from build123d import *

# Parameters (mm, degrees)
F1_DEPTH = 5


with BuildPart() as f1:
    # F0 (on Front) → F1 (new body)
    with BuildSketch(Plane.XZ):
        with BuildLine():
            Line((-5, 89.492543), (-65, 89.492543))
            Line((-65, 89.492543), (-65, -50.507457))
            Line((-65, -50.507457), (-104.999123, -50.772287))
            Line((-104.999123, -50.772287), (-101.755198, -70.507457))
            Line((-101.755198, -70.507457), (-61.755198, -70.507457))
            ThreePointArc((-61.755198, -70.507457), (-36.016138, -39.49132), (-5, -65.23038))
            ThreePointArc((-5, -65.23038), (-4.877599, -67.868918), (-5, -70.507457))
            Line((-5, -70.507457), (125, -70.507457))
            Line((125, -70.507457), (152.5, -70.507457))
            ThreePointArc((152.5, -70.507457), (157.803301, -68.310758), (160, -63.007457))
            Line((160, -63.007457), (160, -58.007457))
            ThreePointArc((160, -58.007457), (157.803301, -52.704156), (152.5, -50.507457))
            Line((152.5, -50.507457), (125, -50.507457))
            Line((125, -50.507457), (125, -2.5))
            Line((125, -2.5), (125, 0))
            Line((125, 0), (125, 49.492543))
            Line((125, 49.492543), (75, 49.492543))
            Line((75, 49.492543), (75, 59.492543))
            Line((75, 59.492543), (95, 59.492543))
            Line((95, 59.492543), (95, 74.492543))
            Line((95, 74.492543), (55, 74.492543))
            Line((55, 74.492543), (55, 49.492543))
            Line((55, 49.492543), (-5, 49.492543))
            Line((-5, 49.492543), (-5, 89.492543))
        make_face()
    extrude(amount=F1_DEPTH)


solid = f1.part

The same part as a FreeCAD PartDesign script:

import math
import FreeCAD as App
import Part
import Sketcher

V = App.Vector

doc = App.newDocument("Part")
body = doc.addObject("PartDesign::Body", "Body")

# Sketch on XZ plane
sketch1 = body.newObject("Sketcher::SketchObject", "Sketch")
sketch1.AttachmentSupport = (doc.getObject("XZ_Plane"), [""])
sketch1.MapMode = "FlatFace"
sketch1.addGeometry([
    Part.LineSegment(V(-5, 89.492543, 0), V(-65, 89.492543, 0)),  # 0
    Part.LineSegment(V(-65, 89.492543, 0), V(-65, -50.507457, 0)),  # 1
    Part.LineSegment(V(-65, -50.507457, 0), V(-104.999123, -50.772287, 0)),  # 2
    Part.LineSegment(V(-104.999123, -50.772287, 0), V(-101.755198, -70.507457, 0)),  # 3
    Part.LineSegment(V(-101.755198, -70.507457, 0), V(-61.755198, -70.507457, 0)),  # 4
    Part.ArcOfCircle(Part.Circle(V(-33.377599, -67.868919, 0), V(0, 0, 1), 28.5), math.radians(5.312068), math.radians(185.312066)),  # 5
    Part.ArcOfCircle(Part.Circle(V(-33.377642, -67.868919, 0), V(0, 0, 1), 28.500043), math.radians(-5.312059), math.radians(5.312059)),  # 6
    Part.LineSegment(V(-5, -70.507457, 0), V(152.5, -70.507457, 0)),  # 7
    Part.ArcOfCircle(Part.Circle(V(152.5, -63.007457, 0), V(0, 0, 1), 7.5), math.radians(-90.000004), math.radians(0.000004)),  # 8
    Part.LineSegment(V(160, -63.007457, 0), V(160, -58.007457, 0)),  # 9
    Part.ArcOfCircle(Part.Circle(V(152.5, -58.007457, 0), V(0, 0, 1), 7.5), math.radians(-0.000004), math.radians(90.000004)),  # 10
    Part.LineSegment(V(152.5, -50.507457, 0), V(125, -50.507457, 0)),  # 11
    Part.LineSegment(V(125, -50.507457, 0), V(125, 49.492543, 0)),  # 12
    Part.LineSegment(V(125, 49.492543, 0), V(75, 49.492543, 0)),  # 13
    Part.LineSegment(V(75, 49.492543, 0), V(75, 59.492543, 0)),  # 14
    Part.LineSegment(V(75, 59.492543, 0), V(95, 59.492543, 0)),  # 15
    Part.LineSegment(V(95, 59.492543, 0), V(95, 74.492543, 0)),  # 16
    Part.LineSegment(V(95, 74.492543, 0), V(55, 74.492543, 0)),  # 17
    Part.LineSegment(V(55, 74.492543, 0), V(55, 49.492543, 0)),  # 18
    Part.LineSegment(V(55, 49.492543, 0), V(-5, 49.492543, 0)),  # 19
    Part.LineSegment(V(-5, 49.492543, 0), V(-5, 89.492543, 0)),  # 20
], False)
sketch1.addConstraint([
    Sketcher.Constraint("Coincident", 0, 2, 1, 1),
    Sketcher.Constraint("Coincident", 1, 2, 2, 1),
    Sketcher.Constraint("Coincident", 2, 2, 3, 1),
    Sketcher.Constraint("Coincident", 3, 2, 4, 1),
    Sketcher.Constraint("Coincident", 4, 2, 5, 2),
    Sketcher.Constraint("Coincident", 5, 1, 6, 2),
    Sketcher.Constraint("Coincident", 6, 1, 7, 1),
    Sketcher.Constraint("Coincident", 7, 2, 8, 1),
    Sketcher.Constraint("Coincident", 8, 2, 9, 1),
    Sketcher.Constraint("Coincident", 9, 2, 10, 1),
    Sketcher.Constraint("Coincident", 10, 2, 11, 1),
    Sketcher.Constraint("Coincident", 11, 2, 12, 1),
    Sketcher.Constraint("Coincident", 12, 2, 13, 1),
    Sketcher.Constraint("Coincident", 13, 2, 14, 1),
    Sketcher.Constraint("Coincident", 14, 2, 15, 1),
    Sketcher.Constraint("Coincident", 15, 2, 16, 1),
    Sketcher.Constraint("Coincident", 16, 2, 17, 1),
    Sketcher.Constraint("Coincident", 17, 2, 18, 1),
    Sketcher.Constraint("Coincident", 18, 2, 19, 1),
    Sketcher.Constraint("Coincident", 19, 2, 20, 1),
    Sketcher.Constraint("Coincident", 20, 2, 0, 1),
    Sketcher.Constraint("Horizontal", 0),
    Sketcher.Constraint("Vertical", 1),
    Sketcher.Constraint("Horizontal", 4),
    Sketcher.Constraint("Horizontal", 7),
    Sketcher.Constraint("Vertical", 9),
    Sketcher.Constraint("Horizontal", 11),
    Sketcher.Constraint("Vertical", 12),
    Sketcher.Constraint("Horizontal", 13),
    Sketcher.Constraint("Vertical", 14),
    Sketcher.Constraint("Horizontal", 15),
    Sketcher.Constraint("Vertical", 16),
    Sketcher.Constraint("Horizontal", 17),
    Sketcher.Constraint("Vertical", 18),
    Sketcher.Constraint("Horizontal", 19),
    Sketcher.Constraint("Vertical", 20),
    Sketcher.Constraint("Radius", 5, 28.5),
    Sketcher.Constraint("Radius", 8, 7.5),
    Sketcher.Constraint("Radius", 10, 7.5),
    Sketcher.Constraint("DistanceX", 0, 2, 0, 1, 60.0),
    Sketcher.Constraint("DistanceX", 4, 1, 4, 2, 40.0),
    Sketcher.Constraint("DistanceX", 13, 2, 13, 1, 50.0),
    Sketcher.Constraint("DistanceX", 15, 1, 15, 2, 20.0),
    Sketcher.Constraint("DistanceX", 17, 2, 17, 1, 40.0),
    Sketcher.Constraint("DistanceX", 19, 2, 19, 1, 60.0),
    Sketcher.Constraint("DistanceY", 1, 2, 1, 1, 140.0),
    Sketcher.Constraint("DistanceY", 9, 1, 9, 2, 5.0),
    Sketcher.Constraint("DistanceY", 12, 1, 12, 2, 100.0),
    Sketcher.Constraint("DistanceY", 14, 1, 14, 2, 10.0),
    Sketcher.Constraint("DistanceY", 16, 1, 16, 2, 15.0),
    Sketcher.Constraint("DistanceY", 18, 2, 18, 1, 25.0),
    Sketcher.Constraint("DistanceY", 20, 1, 20, 2, 40.0),
    Sketcher.Constraint("Distance", 2, 40.0),
    Sketcher.Constraint("Distance", 3, 20.0),
    Sketcher.Constraint("DistanceX", 7, 1, 7, 2, 157.5),
    Sketcher.Constraint("DistanceX", 11, 2, 11, 1, 27.5),
    Sketcher.Constraint("DistanceX", 0, 2, -1, 1, 65.0),
    Sketcher.Constraint("DistanceX", 5, 1, -1, 1, 5.0),
    Sketcher.Constraint("DistanceX", 6, 1, -1, 1, 5.0),
    Sketcher.Constraint("DistanceX", -1, 1, 8, 2, 160.0),
    Sketcher.Constraint("DistanceY", 8, 3, 10, 3, 5.000001),
    Sketcher.Constraint("DistanceY", 3, 2, 1, 2, 20.0),
    Sketcher.Constraint("DistanceY", 8, 2, 10, 3, 5.0),
    Sketcher.Constraint("Radius", 6, 28.500043),
    Sketcher.Constraint("DistanceX", 5, 3, -1, 1, 33.377599),
    Sketcher.Constraint("DistanceX", 3, 2, 5, 3, 68.377599),
    Sketcher.Constraint("DistanceY", 5, 3, -1, 1, 67.868919),
])
pad1 = body.newObject("PartDesign::Pad", "Pad")
pad1.Profile = sketch1
pad1.Length = 5

doc.recompute()
